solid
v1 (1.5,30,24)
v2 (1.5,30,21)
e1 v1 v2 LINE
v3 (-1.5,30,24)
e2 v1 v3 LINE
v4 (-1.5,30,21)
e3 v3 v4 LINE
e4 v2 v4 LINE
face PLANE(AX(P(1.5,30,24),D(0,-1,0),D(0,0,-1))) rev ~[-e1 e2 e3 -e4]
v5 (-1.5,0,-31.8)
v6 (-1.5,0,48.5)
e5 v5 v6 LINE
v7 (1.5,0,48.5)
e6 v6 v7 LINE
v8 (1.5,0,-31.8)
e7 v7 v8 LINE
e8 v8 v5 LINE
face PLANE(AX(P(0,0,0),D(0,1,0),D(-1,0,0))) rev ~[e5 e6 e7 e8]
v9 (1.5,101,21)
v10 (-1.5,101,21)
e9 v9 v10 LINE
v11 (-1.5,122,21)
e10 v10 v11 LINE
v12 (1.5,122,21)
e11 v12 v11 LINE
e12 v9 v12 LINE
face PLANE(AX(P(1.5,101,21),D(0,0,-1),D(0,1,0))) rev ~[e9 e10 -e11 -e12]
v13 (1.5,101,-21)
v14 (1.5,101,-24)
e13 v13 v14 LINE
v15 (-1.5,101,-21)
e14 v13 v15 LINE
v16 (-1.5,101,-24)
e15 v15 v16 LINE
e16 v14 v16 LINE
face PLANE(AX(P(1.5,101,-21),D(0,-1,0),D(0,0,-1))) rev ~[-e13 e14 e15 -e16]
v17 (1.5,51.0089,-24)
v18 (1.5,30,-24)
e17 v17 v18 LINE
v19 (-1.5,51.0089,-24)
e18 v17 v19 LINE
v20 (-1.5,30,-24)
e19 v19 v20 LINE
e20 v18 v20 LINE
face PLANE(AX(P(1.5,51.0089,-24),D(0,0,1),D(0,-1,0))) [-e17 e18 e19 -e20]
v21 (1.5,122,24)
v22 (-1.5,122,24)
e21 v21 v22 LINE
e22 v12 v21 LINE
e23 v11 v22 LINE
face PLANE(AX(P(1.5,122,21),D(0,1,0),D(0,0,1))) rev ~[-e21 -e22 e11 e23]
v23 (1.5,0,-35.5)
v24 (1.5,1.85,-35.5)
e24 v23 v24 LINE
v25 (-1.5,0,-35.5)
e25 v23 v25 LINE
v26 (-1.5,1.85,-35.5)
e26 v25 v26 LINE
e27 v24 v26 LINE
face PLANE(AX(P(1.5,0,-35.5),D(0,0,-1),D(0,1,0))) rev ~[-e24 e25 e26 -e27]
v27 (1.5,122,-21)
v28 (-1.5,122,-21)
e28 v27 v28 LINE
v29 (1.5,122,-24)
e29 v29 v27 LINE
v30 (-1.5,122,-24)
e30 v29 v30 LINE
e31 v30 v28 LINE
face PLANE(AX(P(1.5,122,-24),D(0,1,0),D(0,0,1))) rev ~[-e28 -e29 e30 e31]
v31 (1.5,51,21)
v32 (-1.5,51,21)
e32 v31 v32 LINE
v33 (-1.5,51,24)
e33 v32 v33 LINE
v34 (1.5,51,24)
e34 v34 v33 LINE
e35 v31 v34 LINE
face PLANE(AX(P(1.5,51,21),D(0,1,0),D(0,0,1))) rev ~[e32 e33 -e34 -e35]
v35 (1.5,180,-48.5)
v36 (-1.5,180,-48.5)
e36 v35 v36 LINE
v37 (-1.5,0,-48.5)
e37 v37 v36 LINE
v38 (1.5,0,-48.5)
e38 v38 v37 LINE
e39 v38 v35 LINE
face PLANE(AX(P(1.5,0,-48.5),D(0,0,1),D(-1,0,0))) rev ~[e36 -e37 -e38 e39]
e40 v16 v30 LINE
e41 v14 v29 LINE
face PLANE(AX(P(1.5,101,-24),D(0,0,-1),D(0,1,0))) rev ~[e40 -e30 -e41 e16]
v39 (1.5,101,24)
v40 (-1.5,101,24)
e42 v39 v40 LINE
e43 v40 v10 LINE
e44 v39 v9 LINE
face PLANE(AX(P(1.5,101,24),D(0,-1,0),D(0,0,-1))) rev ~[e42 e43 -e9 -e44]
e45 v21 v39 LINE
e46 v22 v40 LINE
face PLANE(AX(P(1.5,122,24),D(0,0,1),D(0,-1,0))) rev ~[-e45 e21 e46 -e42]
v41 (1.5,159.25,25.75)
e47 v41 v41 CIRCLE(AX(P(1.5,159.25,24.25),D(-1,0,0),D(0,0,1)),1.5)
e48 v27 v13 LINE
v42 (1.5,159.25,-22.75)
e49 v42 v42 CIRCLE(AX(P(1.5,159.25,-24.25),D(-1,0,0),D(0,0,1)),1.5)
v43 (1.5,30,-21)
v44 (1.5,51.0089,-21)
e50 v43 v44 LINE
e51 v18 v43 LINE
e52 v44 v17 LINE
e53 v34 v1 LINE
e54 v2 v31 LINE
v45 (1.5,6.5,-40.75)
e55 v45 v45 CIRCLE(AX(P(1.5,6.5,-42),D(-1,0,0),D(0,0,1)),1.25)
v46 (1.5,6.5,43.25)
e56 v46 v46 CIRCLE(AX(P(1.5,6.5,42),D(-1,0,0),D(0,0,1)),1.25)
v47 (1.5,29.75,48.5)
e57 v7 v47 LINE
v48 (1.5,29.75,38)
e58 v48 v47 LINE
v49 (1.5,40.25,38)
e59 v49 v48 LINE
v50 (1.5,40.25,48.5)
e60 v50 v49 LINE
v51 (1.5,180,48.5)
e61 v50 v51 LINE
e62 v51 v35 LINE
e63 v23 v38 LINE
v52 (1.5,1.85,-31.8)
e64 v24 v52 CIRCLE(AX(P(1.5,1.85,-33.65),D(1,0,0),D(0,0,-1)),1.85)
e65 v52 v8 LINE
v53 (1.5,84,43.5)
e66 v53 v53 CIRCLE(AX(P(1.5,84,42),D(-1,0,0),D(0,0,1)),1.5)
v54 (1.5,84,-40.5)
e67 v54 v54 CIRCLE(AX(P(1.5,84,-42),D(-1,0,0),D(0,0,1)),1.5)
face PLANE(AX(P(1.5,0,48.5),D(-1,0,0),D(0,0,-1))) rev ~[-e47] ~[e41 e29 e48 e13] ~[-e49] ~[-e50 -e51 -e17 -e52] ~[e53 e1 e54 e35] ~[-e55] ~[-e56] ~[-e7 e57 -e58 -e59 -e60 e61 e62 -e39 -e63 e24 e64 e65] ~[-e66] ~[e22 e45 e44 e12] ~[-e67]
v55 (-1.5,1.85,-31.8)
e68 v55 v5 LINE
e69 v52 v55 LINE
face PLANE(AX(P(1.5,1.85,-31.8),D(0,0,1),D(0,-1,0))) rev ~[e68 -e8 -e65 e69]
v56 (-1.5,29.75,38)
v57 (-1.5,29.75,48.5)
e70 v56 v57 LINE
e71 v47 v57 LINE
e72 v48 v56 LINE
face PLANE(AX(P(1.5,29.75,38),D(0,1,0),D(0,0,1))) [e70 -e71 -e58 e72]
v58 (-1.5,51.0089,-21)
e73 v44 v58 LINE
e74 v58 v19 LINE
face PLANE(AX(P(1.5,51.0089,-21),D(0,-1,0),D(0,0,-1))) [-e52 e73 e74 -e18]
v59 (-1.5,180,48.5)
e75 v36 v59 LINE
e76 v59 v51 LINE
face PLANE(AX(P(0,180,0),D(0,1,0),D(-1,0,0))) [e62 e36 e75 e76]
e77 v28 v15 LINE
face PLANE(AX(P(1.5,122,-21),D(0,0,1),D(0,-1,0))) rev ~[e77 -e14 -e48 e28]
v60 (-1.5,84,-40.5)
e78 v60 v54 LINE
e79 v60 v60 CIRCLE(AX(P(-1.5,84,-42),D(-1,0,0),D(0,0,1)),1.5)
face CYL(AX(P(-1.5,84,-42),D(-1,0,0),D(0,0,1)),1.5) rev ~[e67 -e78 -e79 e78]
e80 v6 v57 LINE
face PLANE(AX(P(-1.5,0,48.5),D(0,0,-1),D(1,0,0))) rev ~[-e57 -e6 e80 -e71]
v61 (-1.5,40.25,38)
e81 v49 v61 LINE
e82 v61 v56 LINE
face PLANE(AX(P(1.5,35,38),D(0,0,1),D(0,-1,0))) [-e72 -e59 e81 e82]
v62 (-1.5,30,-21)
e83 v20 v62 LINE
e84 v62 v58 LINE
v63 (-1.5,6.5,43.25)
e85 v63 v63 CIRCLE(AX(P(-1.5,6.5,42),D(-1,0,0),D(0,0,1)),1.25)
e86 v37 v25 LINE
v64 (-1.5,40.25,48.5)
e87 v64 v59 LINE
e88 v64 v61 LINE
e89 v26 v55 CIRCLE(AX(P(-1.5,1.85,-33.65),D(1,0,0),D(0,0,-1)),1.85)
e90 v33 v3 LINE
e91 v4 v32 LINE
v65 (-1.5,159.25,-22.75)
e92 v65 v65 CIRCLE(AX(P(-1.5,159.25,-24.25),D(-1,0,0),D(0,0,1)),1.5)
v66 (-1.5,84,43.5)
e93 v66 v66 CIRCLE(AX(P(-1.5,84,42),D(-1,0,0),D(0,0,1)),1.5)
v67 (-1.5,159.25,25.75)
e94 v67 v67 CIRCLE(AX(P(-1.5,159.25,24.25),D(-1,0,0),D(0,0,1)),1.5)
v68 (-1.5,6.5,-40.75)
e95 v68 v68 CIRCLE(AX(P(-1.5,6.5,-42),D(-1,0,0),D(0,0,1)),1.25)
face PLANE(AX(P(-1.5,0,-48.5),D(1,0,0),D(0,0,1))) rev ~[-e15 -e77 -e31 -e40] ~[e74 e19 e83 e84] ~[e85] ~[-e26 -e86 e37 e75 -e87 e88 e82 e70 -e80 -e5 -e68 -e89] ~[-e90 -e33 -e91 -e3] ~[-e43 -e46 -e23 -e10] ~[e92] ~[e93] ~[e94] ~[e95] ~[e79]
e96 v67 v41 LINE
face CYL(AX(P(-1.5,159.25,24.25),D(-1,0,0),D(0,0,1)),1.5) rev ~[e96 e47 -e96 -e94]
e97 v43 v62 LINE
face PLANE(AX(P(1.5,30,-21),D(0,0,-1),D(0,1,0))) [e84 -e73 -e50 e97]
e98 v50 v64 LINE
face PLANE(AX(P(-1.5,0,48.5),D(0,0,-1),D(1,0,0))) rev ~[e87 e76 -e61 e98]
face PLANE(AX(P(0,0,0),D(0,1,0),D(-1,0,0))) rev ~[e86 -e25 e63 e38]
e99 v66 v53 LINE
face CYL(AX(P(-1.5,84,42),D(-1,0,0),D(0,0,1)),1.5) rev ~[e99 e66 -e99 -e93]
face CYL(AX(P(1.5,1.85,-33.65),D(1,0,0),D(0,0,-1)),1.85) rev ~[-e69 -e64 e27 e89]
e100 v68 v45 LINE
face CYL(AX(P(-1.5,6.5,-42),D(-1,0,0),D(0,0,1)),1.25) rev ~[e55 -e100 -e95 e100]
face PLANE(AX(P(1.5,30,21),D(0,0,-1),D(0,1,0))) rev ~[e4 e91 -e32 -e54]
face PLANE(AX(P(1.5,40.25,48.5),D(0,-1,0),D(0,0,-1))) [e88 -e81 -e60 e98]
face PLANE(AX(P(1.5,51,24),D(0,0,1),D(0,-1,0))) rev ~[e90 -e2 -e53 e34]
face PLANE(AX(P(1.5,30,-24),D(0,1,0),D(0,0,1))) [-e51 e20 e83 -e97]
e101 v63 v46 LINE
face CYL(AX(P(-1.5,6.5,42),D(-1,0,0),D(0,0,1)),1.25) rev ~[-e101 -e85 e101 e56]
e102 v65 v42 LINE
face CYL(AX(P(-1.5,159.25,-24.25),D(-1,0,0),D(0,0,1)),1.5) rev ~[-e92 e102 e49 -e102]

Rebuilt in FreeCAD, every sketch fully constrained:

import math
import FreeCAD as App
import Part
import Sketcher

V = App.Vector

doc = App.newDocument("Part")
body = doc.addObject("PartDesign::Body", "Body")

# Sketch on XZ plane
sketch1 = doc.addObject("Sketcher::SketchObject", "Sketch")
body.addObject(sketch1)
sketch1.AttachmentSupport = (doc.XZ_Plane, [""])
sketch1.MapMode = "FlatFace"
sketch1.addGeometry([
    Part.LineSegment(V(1.5, 48.5, 0), V(1.5, -48.5, 0)),
    Part.LineSegment(V(1.5, -48.5, 0), V(-1.5, -48.5, 0)),
    Part.LineSegment(V(-1.5, -48.5, 0), V(-1.5, 48.5, 0)),
    Part.LineSegment(V(-1.5, 48.5, 0), V(1.5, 48.5, 0)),
], False)
sketch1.addConstraint([
    Sketcher.Constraint("Coincident", 0, 2, 1, 1),
    Sketcher.Constraint("Coincident", 1, 2, 2, 1),
    Sketcher.Constraint("Coincident", 2, 2, 3, 1),
    Sketcher.Constraint("Coincident", 3, 2, 0, 1),
    Sketcher.Constraint("Vertical", 0),
    Sketcher.Constraint("Horizontal", 1),
    Sketcher.Constraint("Vertical", 2),
    Sketcher.Constraint("Horizontal", 3),
    Sketcher.Constraint("Symmetric", 0, 2, 2, 2, -1, 1),
    Sketcher.Constraint("DistanceX", 1, 2, 1, 1, 3.0),
    Sketcher.Constraint("DistanceY", 0, 2, 0, 1, 97.0),
])
pad1 = doc.addObject("PartDesign::Pad", "Pad")
body.addObject(pad1)
pad1.Profile = sketch1
pad1.Length = 180
pad1.Reversed = True

# Sketch on YZ plane
sketch2 = doc.addObject("Sketcher::SketchObject", "Sketch001")
body.addObject(sketch2)
sketch2.AttachmentSupport = (doc.YZ_Plane, [""])
sketch2.MapMode = "FlatFace"
sketch2.AttachmentOffset = App.Placement(V(0, 0, -1.5), App.Rotation())
sketch2.addGeometry([
    Part.Circle(V(159.2, -24.2, 0), V(0, 0, 1), 1.5),  # 0
    Part.Circle(V(159.2, 24.2, 0), V(0, 0, 1), 1.5),  # 1
    Part.Circle(V(84, 42, 0), V(0, 0, 1), 1.5),  # 2
    Part.Circle(V(84, -42, 0), V(0, 0, 1), 1.5),  # 3
    Part.Circle(V(6.5, -42, 0), V(0, 0, 1), 1.2),  # 4
    Part.Circle(V(6.5, 42, 0), V(0, 0, 1), 1.2),  # 5
], False)
sketch2.addConstraint([
    Sketcher.Constraint("Equal", 0, 1),
    Sketcher.Constraint("Equal", 1, 2),
    Sketcher.Constraint("Equal", 2, 3),
    Sketcher.Constraint("Equal", 4, 5),
    Sketcher.Constraint("Symmetric", 0, 3, 1, 3, -1),
    Sketcher.Constraint("Symmetric", 2, 3, 3, 3, -1),
    Sketcher.Constraint("Symmetric", 4, 3, 5, 3, -1),
    Sketcher.Constraint("Horizontal", 3, 3, 4, 3),
    Sketcher.Constraint("Diameter", 0, 3.0),
    Sketcher.Constraint("Diameter", 4, 2.5),
    Sketcher.Constraint("DistanceX", -1, 1, 2, 3, 84.0),
    Sketcher.Constraint("DistanceY", -1, 1, 2, 3, 42.0),
    Sketcher.Constraint("DistanceX", -1, 1, 4, 3, 6.5),
    Sketcher.Constraint("DistanceY", 0, 3, 1, 3, 48.5),
    Sketcher.Constraint("DistanceX", -1, 1, 0, 3, 159.25),
])
pocket1 = doc.addObject("PartDesign::Pocket", "Pocket")
body.addObject(pocket1)
pocket1.Profile = sketch2
pocket1.Type = "ThroughAll"
pocket1.Reversed = True

# Sketch on YZ plane
sketch3 = doc.addObject("Sketcher::SketchObject", "Sketch002")
body.addObject(sketch3)
sketch3.AttachmentSupport = (doc.YZ_Plane, [""])
sketch3.MapMode = "FlatFace"
sketch3.AttachmentOffset = App.Placement(V(0, 0, 1.5), App.Rotation())
sketch3.addGeometry([
    Part.LineSegment(V(30, 48, 0), V(30, 38, 0)),
    Part.LineSegment(V(30, 38, 0), V(40, 38, 0)),
    Part.LineSegment(V(40, 38, 0), V(40, 48, 0)),
    Part.LineSegment(V(40, 48, 0), V(30, 48, 0)),
], False)
sketch3.addConstraint([
    Sketcher.Constraint("Coincident", 0, 2, 1, 1),
    Sketcher.Constraint("Coincident", 1, 2, 2, 1),
    Sketcher.Constraint("Coincident", 2, 2, 3, 1),
    Sketcher.Constraint("Coincident", 3, 2, 0, 1),
    Sketcher.Constraint("Vertical", 0),
    Sketcher.Constraint("Horizontal", 1),
    Sketcher.Constraint("Vertical", 2),
    Sketcher.Constraint("Horizontal", 3),
    Sketcher.Constraint("Equal", 3, 0),
    Sketcher.Constraint("DistanceX", 1, 1, 1, 2, 10.5),
    Sketcher.Constraint("DistanceY", -1, 1, 0, 2, 38.0),
    Sketcher.Constraint("DistanceX", -1, 1, 0, 2, 29.75),
])
pocket2 = doc.addObject("PartDesign::Pocket", "Pocket001")
body.addObject(pocket2)
pocket2.Profile = sketch3
pocket2.Type = "ThroughAll"

# Sketch on YZ plane
sketch4 = doc.addObject("Sketcher::SketchObject", "Sketch003")
body.addObject(sketch4)
sketch4.AttachmentSupport = (doc.YZ_Plane, [""])
sketch4.MapMode = "FlatFace"
sketch4.AttachmentOffset = App.Placement(V(0, 0, 1.5), App.Rotation())
sketch4.addGeometry([
    Part.LineSegment(V(0, -31.8, 0), V(0, -35.5, 0)),
    Part.LineSegment(V(0, -35.5, 0), V(1.9, -35.5, 0)),
    Part.ArcOfCircle(Part.Circle(V(1.9, -33.6, 0), V(0, 0, 1), 1.8), math.radians(-90), math.radians(90)),
    Part.LineSegment(V(1.9, -31.8, 0), V(0, -31.8, 0)),
], False)
sketch4.addConstraint([
    Sketcher.Constraint("Coincident", 0, 2, 1, 1),
    Sketcher.Constraint("Tangent", 1, 2, 2, 1),
    Sketcher.Constraint("Tangent", 2, 2, 3, 1),
    Sketcher.Constraint("Coincident", 3, 2, 0, 1),
    Sketcher.Constraint("Vertical", 0),
    Sketcher.Constraint("Horizontal", 1),
    Sketcher.Constraint("Horizontal", 3),
    Sketcher.Constraint("PointOnObject", 0, 2, -2),
    Sketcher.Constraint("Radius", 2, 1.85),
    Sketcher.Constraint("DistanceX", 1, 1, 1, 2, 1.85),
    Sketcher.Constraint("DistanceY", 0, 2, -1, 1, 35.5),
])
pocket3 = doc.addObject("PartDesign::Pocket", "Pocket002")
body.addObject(pocket3)
pocket3.Profile = sketch4
pocket3.Type = "ThroughAll"

# Sketch on YZ plane
sketch5 = doc.addObject("Sketcher::SketchObject", "Sketch004")
body.addObject(sketch5)
sketch5.AttachmentSupport = (doc.YZ_Plane, [""])
sketch5.MapMode = "FlatFace"
sketch5.AttachmentOffset = App.Placement(V(0, 0, 1.5), App.Rotation())
sketch5.addGeometry([
    Part.LineSegment(V(122, 24, 0), V(101, 24, 0)),  # 0
    Part.LineSegment(V(101, 24, 0), V(101, 21, 0)),  # 1
    Part.LineSegment(V(101, 21, 0), V(122, 21, 0)),  # 2
    Part.LineSegment(V(122, 21, 0), V(122, 24, 0)),  # 3
    Part.LineSegment(V(51, 24, 0), V(30, 24, 0)),  # 4
    Part.LineSegment(V(30, 24, 0), V(30, 21, 0)),  # 5
    Part.LineSegment(V(30, 21, 0), V(51, 21, 0)),  # 6
    Part.LineSegment(V(51, 21, 0), V(51, 24, 0)),  # 7
    Part.LineSegment(V(30, -21, 0), V(30, -24, 0)),  # 8
    Part.LineSegment(V(30, -24, 0), V(51, -24, 0)),  # 9
    Part.LineSegment(V(51, -24, 0), V(51, -21, 0)),  # 10
    Part.LineSegment(V(51, -21, 0), V(30, -21, 0)),  # 11
    Part.LineSegment(V(122, -21, 0), V(101, -21, 0)),  # 12
    Part.LineSegment(V(101, -21, 0), V(101, -24, 0)),  # 13
    Part.LineSegment(V(101, -24, 0), V(122, -24, 0)),  # 14
    Part.LineSegment(V(122, -24, 0), V(122, -21, 0)),  # 15
], False)
sketch5.addConstraint([
    Sketcher.Constraint("Coincident", 0, 2, 1, 1),
    Sketcher.Constraint("Coincident", 1, 2, 2, 1),
    Sketcher.Constraint("Coincident", 2, 2, 3, 1),
    Sketcher.Constraint("Coincident", 3, 2, 0, 1),
    Sketcher.Constraint("Coincident", 4, 2, 5, 1),
    Sketcher.Constraint("Coincident", 5, 2, 6, 1),
    Sketcher.Constraint("Coincident", 6, 2, 7, 1),
    Sketcher.Constraint("Coincident", 7, 2, 4, 1),
    Sketcher.Constraint("Coincident", 8, 2, 9, 1),
    Sketcher.Constraint("Coincident", 9, 2, 10, 1),
    Sketcher.Constraint("Coincident", 10, 2, 11, 1),
    Sketcher.Constraint("Coincident", 11, 2, 8, 1),
    Sketcher.Constraint("Coincident", 12, 2, 13, 1),
    Sketcher.Constraint("Coincident", 13, 2, 14, 1),
    Sketcher.Constraint("Coincident", 14, 2, 15, 1),
    Sketcher.Constraint("Coincident", 15, 2, 12, 1),
    Sketcher.Constraint("Horizontal", 0),
    Sketcher.Constraint("Vertical", 1),
    Sketcher.Constraint("Horizontal", 2),
    Sketcher.Constraint("Vertical", 3),
    Sketcher.Constraint("Horizontal", 4),
    Sketcher.Constraint("Vertical", 5),
    Sketcher.Constraint("Horizontal", 6),
    Sketcher.Constraint("Vertical", 7),
    Sketcher.Constraint("Vertical", 8),
    Sketcher.Constraint("Horizontal", 9),
    Sketcher.Constraint("Vertical", 10),
    Sketcher.Constraint("Horizontal", 11),
    Sketcher.Constraint("Horizontal", 12),
    Sketcher.Constraint("Vertical", 13),
    Sketcher.Constraint("Horizontal", 14),
    Sketcher.Constraint("Vertical", 15),
    Sketcher.Constraint("Symmetric", 4, 2, 8, 2, -1),
    Sketcher.Constraint("Symmetric", 1, 2, 12, 2, -1),
    Sketcher.Constraint("Symmetric", 3, 2, 14, 2, -1),
    Sketcher.Constraint("Horizontal", 3, 2, 4, 2),
    Sketcher.Constraint("Horizontal", 2, 2, 5, 2),
    Sketcher.Constraint("Horizontal", 11, 2, 12, 2),
    Sketcher.Constraint("Equal", 2, 4),
    Sketcher.Constraint("DistanceX", 0, 2, 0, 1, 21.0),
    Sketcher.Constraint("DistanceY", 1, 2, 1, 1, 3.0),
    Sketcher.Constraint("DistanceY", -1, 1, 0, 2, 24.0),
    Sketcher.Constraint("DistanceX", -1, 1, 4, 2, 30.0),
    Sketcher.Constraint("DistanceX", 6, 2, 1, 2, 50.0),
    Sketcher.Constraint("DistanceX", 9, 1, 9, 2, 21.009),
])
pocket4 = doc.addObject("PartDesign::Pocket", "Pocket003")
body.addObject(pocket4)
pocket4.Profile = sketch5
pocket4.Length = 10

doc.recompute()
